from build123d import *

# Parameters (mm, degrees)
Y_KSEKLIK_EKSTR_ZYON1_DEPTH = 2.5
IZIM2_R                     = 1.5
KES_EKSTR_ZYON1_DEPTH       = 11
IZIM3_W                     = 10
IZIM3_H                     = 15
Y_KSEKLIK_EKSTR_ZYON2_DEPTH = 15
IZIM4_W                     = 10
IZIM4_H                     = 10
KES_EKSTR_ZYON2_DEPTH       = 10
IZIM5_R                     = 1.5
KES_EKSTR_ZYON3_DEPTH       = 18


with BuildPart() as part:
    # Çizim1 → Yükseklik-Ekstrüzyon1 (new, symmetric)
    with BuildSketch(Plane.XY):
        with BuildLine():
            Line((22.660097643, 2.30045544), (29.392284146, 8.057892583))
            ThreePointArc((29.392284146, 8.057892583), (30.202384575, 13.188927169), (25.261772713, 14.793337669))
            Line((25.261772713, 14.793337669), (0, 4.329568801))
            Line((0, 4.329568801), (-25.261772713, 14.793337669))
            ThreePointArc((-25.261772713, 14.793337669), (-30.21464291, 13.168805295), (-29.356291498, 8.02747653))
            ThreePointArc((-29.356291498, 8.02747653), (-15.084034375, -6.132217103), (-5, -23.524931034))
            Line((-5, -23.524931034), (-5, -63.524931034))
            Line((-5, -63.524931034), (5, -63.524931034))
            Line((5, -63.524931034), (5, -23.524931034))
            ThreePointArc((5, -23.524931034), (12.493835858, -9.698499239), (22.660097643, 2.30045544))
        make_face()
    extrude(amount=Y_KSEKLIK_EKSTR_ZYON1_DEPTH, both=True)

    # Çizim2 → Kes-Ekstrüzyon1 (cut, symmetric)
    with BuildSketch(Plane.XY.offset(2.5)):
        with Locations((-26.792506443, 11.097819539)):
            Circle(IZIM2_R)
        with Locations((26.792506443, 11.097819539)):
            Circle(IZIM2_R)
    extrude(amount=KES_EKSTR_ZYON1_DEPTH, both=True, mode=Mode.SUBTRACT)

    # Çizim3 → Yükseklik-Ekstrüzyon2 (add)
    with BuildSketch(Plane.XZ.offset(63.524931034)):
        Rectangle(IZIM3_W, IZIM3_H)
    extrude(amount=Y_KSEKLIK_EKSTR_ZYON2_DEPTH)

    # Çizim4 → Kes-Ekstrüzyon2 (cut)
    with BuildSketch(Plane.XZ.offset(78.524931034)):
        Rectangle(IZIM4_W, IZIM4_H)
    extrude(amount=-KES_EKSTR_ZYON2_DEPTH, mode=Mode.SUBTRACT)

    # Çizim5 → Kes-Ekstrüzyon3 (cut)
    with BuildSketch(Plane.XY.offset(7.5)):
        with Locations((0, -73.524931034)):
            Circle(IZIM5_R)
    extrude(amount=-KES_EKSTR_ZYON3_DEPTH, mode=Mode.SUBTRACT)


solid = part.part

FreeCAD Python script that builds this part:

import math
import FreeCAD as App
import Part
import Sketcher

V = App.Vector
Q = App.Units.Quantity

doc = App.newDocument("Part")
body = doc.addObject("PartDesign::Body", "Body")

# Sketch on XY plane
sketch1 = body.newObject("Sketcher::SketchObject", "Sketch")
sketch1.AttachmentSupport = (doc.getObject("XY_Plane"), [""])
sketch1.MapMode = "FlatFace"
sketch1.addGeometry([
    Part.LineSegment(V(22.660098, 2.300455, 0), V(29.392284, 8.057893, 0)),  # 0
    Part.ArcOfCircle(Part.Circle(V(26.792506, 11.09782, 0), V(0, 0, 1), 4), math.radians(-49.462588), math.radians(112.5)),  # 1
    Part.LineSegment(V(25.261773, 14.793338, 0), V(0, 4.329569, 0)),  # 2
    Part.LineSegment(V(0, 4.329569, 0), V(-25.261773, 14.793338, 0)),  # 3
    Part.ArcOfCircle(Part.Circle(V(-26.792506, 11.09782, 0), V(0, 0, 1), 4), math.radians(67.5), math.radians(230.137584)),  # 4
    Part.ArcOfCircle(Part.Circle(V(-75.556918, -52.81313, 0), V(0, 0, 1), 76.394223), math.radians(22.543353), math.radians(52.787996)),  # 5
    Part.LineSegment(V(-5, -23.524931, 0), V(-5, -63.524931, 0)),  # 6
    Part.LineSegment(V(-5, -63.524931, 0), V(5, -63.524931, 0)),  # 7
    Part.LineSegment(V(5, -63.524931, 0), V(5, -23.524931, 0)),  # 8
    Part.ArcOfCircle(Part.Circle(V(75.553811, -52.820615, 0), V(0, 0, 1), 76.394223), math.radians(133.818679), math.radians(157.450568)),  # 9
], False)
sketch1.addConstraint([
    Sketcher.Constraint("Coincident", 0, 2, 1, 1),
    Sketcher.Constraint("Coincident", 1, 2, 2, 1),
    Sketcher.Constraint("Coincident", 2, 2, 3, 1),
    Sketcher.Constraint("Coincident", 3, 2, 4, 1),
    Sketcher.Constraint("Coincident", 4, 2, 5, 2),
    Sketcher.Constraint("Coincident", 5, 1, 6, 1),
    Sketcher.Constraint("Coincident", 6, 2, 7, 1),
    Sketcher.Constraint("Coincident", 7, 2, 8, 1),
    Sketcher.Constraint("Coincident", 8, 2, 9, 2),
    Sketcher.Constraint("Coincident", 9, 1, 0, 1),
    Sketcher.Constraint("Vertical", 6),
    Sketcher.Constraint("Horizontal", 7),
    Sketcher.Constraint("Vertical", 8),
    Sketcher.Constraint("PointOnObject", 2, 2, -2),
    Sketcher.Constraint("Radius", 1, Q("4 mm")),
    Sketcher.Constraint("Radius", 4, Q("4 mm")),
    Sketcher.Constraint("DistanceX", 7, 1, 7, 2, Q("10 mm")),
    Sketcher.Constraint("DistanceY", 6, 2, 6, 1, Q("40 mm")),
    Sketcher.Constraint("DistanceY", 8, 1, 8, 2, Q("40 mm")),
    Sketcher.Constraint("DistanceX", 5, 1, -1, 1, Q("5 mm")),
    Sketcher.Constraint("Radius", 5, Q("76.394223 mm")),
    Sketcher.Constraint("Radius", 9, Q("76.394223 mm")),
    Sketcher.Constraint("DistanceY", 5, 3, 2, 2, Q("57.142699 mm")),
    Sketcher.Constraint("DistanceY", 5, 1, 2, 2, Q("27.8545 mm")),
    Sketcher.Constraint("DistanceY", -1, 1, 1, 3, Q("11.09782 mm")),
    Sketcher.Constraint("DistanceY", -1, 1, 4, 3, Q("11.09782 mm")),
    Sketcher.Constraint("DistanceY", 5, 3, -1, 1, Q("52.81313 mm")),
    Sketcher.Constraint("DistanceX", -1, 1, 9, 3, Q("75.553811 mm")),
    Sketcher.Constraint("DistanceX", 4, 2, -1, 1, Q("29.356291 mm")),
    Sketcher.Constraint("DistanceX", 4, 3, 0, 2, Q("56.184791 mm")),
    Sketcher.Constraint("DistanceY", 1, 3, 1, 2, Q("3.695518 mm")),
    Sketcher.Constraint("DistanceX", 1, 2, 0, 2, Q("4.130511 mm")),
    Sketcher.Constraint("DistanceY", 4, 3, 3, 2, Q("3.695518 mm")),
    Sketcher.Constraint("DistanceX", 9, 1, 1, 3, Q("4.132409 mm")),
])
pad1 = body.newObject("PartDesign::Pad", "Pad")
pad1.Profile = sketch1
pad1.Length = 5
pad1.Midplane = True

# Sketch on XY plane
sketch2 = body.newObject("Sketcher::SketchObject", "Sketch001")
sketch2.AttachmentSupport = (doc.getObject("XY_Plane"), [""])
sketch2.MapMode = "FlatFace"
sketch2.AttachmentOffset = App.Placement(V(0, 0, 2.5), App.Rotation())
sketch2.addGeometry([
    Part.Circle(V(-26.8, 11.1, 0), V(0, 0, 1), 1.5),
    Part.Circle(V(26.8, 11.1, 0), V(0, 0, 1), 1.5),
], False)
sketch2.addConstraint([
    Sketcher.Constraint("Equal", 0, 1),
    Sketcher.Constraint("Symmetric", 0, 3, 1, 3, -2),
    Sketcher.Constraint("Diameter", 0, Q("3 mm")),
    Sketcher.Constraint("DistanceY", -1, 1, 0, 3, Q("11.09782 mm")),
    Sketcher.Constraint("DistanceX", 0, 3, -1, 1, Q("26.792506 mm")),
])
pocket1 = body.newObject("PartDesign::Pocket", "Pocket")
pocket1.Profile = sketch2
pocket1.Length = 22
pocket1.Midplane = True

# Sketch on XZ plane
sketch3 = body.newObject("Sketcher::SketchObject", "Sketch002")
sketch3.AttachmentSupport = (doc.getObject("XZ_Plane"), [""])
sketch3.MapMode = "FlatFace"
sketch3.AttachmentOffset = App.Placement(V(0, 0, 63.524931), App.Rotation())
sketch3.addGeometry([
    Part.LineSegment(V(-5, 8, 0), V(-5, -8, 0)),
    Part.LineSegment(V(-5, -8, 0), V(5, -8, 0)),
    Part.LineSegment(V(5, -8, 0), V(5, 8, 0)),
    Part.LineSegment(V(5, 8, 0), V(-5, 8, 0)),
], False)
sketch3.addConstraint([
    Sketcher.Constraint("Coincident", 0, 2, 1, 1),
    Sketcher.Constraint("Coincident", 1, 2, 2, 1),
    Sketcher.Constraint("Coincident", 2, 2, 3, 1),
    Sketcher.Constraint("Coincident", 3, 2, 0, 1),
    Sketcher.Constraint("Vertical", 0),
    Sketcher.Constraint("Horizontal", 1),
    Sketcher.Constraint("Vertical", 2),
    Sketcher.Constraint("Horizontal", 3),
    Sketcher.Constraint("Symmetric", 0, 2, 2, 2, -1, 1),
    Sketcher.Constraint("DistanceX", 1, 1, 1, 2, Q("10 mm")),
    Sketcher.Constraint("DistanceY", 0, 2, 0, 1, Q("15 mm")),
])
pad2 = body.newObject("PartDesign::Pad", "Pad001")
pad2.Profile = sketch3
pad2.Length = 15

# Sketch on XZ plane
sketch4 = body.newObject("Sketcher::SketchObject", "Sketch003")
sketch4.AttachmentSupport = (doc.getObject("XZ_Plane"), [""])
sketch4.MapMode = "FlatFace"
sketch4.AttachmentOffset = App.Placement(V(0, 0, 78.524931), App.Rotation())
sketch4.addGeometry([
    Part.LineSegment(V(-5, 5, 0), V(-5, -5, 0)),
    Part.LineSegment(V(-5, -5, 0), V(5, -5, 0)),
    Part.LineSegment(V(5, -5, 0), V(5, 5, 0)),
    Part.LineSegment(V(5, 5, 0), V(-5, 5, 0)),
], False)
sketch4.addConstraint([
    Sketcher.Constraint("Coincident", 0, 2, 1, 1),
    Sketcher.Constraint("Coincident", 1, 2, 2, 1),
    Sketcher.Constraint("Coincident", 2, 2, 3, 1),
    Sketcher.Constraint("Coincident", 3, 2, 0, 1),
    Sketcher.Constraint("Vertical", 0),
    Sketcher.Constraint("Horizontal", 1),
    Sketcher.Constraint("Vertical", 2),
    Sketcher.Constraint("Horizontal", 3),
    Sketcher.Constraint("Symmetric", 0, 2, 2, 2, -1, 1),
    Sketcher.Constraint("Equal", 3, 0),
    Sketcher.Constraint("DistanceX", 1, 1, 1, 2, Q("10 mm")),
])
pocket2 = body.newObject("PartDesign::Pocket", "Pocket001")
pocket2.Profile = sketch4
pocket2.Length = 10

# Sketch on XY plane
sketch5 = body.newObject("Sketcher::SketchObject", "Sketch004")
sketch5.AttachmentSupport = (doc.getObject("XY_Plane"), [""])
sketch5.MapMode = "FlatFace"
sketch5.AttachmentOffset = App.Placement(V(0, 0, 7.5), App.Rotation())
sketch5.addGeometry(Part.Circle(V(0, -73.5, 0), V(0, 0, 1), 1.5), False)
sketch5.addConstraint([
    Sketcher.Constraint("PointOnObject", 0, 3, -2),
    Sketcher.Constraint("Diameter", 0, Q("3 mm")),
    Sketcher.Constraint("DistanceY", 0, 3, -1, 1, Q("73.524931 mm")),
])
pocket3 = body.newObject("PartDesign::Pocket", "Pocket002")
pocket3.Profile = sketch5
pocket3.Length = 18

doc.recompute()
